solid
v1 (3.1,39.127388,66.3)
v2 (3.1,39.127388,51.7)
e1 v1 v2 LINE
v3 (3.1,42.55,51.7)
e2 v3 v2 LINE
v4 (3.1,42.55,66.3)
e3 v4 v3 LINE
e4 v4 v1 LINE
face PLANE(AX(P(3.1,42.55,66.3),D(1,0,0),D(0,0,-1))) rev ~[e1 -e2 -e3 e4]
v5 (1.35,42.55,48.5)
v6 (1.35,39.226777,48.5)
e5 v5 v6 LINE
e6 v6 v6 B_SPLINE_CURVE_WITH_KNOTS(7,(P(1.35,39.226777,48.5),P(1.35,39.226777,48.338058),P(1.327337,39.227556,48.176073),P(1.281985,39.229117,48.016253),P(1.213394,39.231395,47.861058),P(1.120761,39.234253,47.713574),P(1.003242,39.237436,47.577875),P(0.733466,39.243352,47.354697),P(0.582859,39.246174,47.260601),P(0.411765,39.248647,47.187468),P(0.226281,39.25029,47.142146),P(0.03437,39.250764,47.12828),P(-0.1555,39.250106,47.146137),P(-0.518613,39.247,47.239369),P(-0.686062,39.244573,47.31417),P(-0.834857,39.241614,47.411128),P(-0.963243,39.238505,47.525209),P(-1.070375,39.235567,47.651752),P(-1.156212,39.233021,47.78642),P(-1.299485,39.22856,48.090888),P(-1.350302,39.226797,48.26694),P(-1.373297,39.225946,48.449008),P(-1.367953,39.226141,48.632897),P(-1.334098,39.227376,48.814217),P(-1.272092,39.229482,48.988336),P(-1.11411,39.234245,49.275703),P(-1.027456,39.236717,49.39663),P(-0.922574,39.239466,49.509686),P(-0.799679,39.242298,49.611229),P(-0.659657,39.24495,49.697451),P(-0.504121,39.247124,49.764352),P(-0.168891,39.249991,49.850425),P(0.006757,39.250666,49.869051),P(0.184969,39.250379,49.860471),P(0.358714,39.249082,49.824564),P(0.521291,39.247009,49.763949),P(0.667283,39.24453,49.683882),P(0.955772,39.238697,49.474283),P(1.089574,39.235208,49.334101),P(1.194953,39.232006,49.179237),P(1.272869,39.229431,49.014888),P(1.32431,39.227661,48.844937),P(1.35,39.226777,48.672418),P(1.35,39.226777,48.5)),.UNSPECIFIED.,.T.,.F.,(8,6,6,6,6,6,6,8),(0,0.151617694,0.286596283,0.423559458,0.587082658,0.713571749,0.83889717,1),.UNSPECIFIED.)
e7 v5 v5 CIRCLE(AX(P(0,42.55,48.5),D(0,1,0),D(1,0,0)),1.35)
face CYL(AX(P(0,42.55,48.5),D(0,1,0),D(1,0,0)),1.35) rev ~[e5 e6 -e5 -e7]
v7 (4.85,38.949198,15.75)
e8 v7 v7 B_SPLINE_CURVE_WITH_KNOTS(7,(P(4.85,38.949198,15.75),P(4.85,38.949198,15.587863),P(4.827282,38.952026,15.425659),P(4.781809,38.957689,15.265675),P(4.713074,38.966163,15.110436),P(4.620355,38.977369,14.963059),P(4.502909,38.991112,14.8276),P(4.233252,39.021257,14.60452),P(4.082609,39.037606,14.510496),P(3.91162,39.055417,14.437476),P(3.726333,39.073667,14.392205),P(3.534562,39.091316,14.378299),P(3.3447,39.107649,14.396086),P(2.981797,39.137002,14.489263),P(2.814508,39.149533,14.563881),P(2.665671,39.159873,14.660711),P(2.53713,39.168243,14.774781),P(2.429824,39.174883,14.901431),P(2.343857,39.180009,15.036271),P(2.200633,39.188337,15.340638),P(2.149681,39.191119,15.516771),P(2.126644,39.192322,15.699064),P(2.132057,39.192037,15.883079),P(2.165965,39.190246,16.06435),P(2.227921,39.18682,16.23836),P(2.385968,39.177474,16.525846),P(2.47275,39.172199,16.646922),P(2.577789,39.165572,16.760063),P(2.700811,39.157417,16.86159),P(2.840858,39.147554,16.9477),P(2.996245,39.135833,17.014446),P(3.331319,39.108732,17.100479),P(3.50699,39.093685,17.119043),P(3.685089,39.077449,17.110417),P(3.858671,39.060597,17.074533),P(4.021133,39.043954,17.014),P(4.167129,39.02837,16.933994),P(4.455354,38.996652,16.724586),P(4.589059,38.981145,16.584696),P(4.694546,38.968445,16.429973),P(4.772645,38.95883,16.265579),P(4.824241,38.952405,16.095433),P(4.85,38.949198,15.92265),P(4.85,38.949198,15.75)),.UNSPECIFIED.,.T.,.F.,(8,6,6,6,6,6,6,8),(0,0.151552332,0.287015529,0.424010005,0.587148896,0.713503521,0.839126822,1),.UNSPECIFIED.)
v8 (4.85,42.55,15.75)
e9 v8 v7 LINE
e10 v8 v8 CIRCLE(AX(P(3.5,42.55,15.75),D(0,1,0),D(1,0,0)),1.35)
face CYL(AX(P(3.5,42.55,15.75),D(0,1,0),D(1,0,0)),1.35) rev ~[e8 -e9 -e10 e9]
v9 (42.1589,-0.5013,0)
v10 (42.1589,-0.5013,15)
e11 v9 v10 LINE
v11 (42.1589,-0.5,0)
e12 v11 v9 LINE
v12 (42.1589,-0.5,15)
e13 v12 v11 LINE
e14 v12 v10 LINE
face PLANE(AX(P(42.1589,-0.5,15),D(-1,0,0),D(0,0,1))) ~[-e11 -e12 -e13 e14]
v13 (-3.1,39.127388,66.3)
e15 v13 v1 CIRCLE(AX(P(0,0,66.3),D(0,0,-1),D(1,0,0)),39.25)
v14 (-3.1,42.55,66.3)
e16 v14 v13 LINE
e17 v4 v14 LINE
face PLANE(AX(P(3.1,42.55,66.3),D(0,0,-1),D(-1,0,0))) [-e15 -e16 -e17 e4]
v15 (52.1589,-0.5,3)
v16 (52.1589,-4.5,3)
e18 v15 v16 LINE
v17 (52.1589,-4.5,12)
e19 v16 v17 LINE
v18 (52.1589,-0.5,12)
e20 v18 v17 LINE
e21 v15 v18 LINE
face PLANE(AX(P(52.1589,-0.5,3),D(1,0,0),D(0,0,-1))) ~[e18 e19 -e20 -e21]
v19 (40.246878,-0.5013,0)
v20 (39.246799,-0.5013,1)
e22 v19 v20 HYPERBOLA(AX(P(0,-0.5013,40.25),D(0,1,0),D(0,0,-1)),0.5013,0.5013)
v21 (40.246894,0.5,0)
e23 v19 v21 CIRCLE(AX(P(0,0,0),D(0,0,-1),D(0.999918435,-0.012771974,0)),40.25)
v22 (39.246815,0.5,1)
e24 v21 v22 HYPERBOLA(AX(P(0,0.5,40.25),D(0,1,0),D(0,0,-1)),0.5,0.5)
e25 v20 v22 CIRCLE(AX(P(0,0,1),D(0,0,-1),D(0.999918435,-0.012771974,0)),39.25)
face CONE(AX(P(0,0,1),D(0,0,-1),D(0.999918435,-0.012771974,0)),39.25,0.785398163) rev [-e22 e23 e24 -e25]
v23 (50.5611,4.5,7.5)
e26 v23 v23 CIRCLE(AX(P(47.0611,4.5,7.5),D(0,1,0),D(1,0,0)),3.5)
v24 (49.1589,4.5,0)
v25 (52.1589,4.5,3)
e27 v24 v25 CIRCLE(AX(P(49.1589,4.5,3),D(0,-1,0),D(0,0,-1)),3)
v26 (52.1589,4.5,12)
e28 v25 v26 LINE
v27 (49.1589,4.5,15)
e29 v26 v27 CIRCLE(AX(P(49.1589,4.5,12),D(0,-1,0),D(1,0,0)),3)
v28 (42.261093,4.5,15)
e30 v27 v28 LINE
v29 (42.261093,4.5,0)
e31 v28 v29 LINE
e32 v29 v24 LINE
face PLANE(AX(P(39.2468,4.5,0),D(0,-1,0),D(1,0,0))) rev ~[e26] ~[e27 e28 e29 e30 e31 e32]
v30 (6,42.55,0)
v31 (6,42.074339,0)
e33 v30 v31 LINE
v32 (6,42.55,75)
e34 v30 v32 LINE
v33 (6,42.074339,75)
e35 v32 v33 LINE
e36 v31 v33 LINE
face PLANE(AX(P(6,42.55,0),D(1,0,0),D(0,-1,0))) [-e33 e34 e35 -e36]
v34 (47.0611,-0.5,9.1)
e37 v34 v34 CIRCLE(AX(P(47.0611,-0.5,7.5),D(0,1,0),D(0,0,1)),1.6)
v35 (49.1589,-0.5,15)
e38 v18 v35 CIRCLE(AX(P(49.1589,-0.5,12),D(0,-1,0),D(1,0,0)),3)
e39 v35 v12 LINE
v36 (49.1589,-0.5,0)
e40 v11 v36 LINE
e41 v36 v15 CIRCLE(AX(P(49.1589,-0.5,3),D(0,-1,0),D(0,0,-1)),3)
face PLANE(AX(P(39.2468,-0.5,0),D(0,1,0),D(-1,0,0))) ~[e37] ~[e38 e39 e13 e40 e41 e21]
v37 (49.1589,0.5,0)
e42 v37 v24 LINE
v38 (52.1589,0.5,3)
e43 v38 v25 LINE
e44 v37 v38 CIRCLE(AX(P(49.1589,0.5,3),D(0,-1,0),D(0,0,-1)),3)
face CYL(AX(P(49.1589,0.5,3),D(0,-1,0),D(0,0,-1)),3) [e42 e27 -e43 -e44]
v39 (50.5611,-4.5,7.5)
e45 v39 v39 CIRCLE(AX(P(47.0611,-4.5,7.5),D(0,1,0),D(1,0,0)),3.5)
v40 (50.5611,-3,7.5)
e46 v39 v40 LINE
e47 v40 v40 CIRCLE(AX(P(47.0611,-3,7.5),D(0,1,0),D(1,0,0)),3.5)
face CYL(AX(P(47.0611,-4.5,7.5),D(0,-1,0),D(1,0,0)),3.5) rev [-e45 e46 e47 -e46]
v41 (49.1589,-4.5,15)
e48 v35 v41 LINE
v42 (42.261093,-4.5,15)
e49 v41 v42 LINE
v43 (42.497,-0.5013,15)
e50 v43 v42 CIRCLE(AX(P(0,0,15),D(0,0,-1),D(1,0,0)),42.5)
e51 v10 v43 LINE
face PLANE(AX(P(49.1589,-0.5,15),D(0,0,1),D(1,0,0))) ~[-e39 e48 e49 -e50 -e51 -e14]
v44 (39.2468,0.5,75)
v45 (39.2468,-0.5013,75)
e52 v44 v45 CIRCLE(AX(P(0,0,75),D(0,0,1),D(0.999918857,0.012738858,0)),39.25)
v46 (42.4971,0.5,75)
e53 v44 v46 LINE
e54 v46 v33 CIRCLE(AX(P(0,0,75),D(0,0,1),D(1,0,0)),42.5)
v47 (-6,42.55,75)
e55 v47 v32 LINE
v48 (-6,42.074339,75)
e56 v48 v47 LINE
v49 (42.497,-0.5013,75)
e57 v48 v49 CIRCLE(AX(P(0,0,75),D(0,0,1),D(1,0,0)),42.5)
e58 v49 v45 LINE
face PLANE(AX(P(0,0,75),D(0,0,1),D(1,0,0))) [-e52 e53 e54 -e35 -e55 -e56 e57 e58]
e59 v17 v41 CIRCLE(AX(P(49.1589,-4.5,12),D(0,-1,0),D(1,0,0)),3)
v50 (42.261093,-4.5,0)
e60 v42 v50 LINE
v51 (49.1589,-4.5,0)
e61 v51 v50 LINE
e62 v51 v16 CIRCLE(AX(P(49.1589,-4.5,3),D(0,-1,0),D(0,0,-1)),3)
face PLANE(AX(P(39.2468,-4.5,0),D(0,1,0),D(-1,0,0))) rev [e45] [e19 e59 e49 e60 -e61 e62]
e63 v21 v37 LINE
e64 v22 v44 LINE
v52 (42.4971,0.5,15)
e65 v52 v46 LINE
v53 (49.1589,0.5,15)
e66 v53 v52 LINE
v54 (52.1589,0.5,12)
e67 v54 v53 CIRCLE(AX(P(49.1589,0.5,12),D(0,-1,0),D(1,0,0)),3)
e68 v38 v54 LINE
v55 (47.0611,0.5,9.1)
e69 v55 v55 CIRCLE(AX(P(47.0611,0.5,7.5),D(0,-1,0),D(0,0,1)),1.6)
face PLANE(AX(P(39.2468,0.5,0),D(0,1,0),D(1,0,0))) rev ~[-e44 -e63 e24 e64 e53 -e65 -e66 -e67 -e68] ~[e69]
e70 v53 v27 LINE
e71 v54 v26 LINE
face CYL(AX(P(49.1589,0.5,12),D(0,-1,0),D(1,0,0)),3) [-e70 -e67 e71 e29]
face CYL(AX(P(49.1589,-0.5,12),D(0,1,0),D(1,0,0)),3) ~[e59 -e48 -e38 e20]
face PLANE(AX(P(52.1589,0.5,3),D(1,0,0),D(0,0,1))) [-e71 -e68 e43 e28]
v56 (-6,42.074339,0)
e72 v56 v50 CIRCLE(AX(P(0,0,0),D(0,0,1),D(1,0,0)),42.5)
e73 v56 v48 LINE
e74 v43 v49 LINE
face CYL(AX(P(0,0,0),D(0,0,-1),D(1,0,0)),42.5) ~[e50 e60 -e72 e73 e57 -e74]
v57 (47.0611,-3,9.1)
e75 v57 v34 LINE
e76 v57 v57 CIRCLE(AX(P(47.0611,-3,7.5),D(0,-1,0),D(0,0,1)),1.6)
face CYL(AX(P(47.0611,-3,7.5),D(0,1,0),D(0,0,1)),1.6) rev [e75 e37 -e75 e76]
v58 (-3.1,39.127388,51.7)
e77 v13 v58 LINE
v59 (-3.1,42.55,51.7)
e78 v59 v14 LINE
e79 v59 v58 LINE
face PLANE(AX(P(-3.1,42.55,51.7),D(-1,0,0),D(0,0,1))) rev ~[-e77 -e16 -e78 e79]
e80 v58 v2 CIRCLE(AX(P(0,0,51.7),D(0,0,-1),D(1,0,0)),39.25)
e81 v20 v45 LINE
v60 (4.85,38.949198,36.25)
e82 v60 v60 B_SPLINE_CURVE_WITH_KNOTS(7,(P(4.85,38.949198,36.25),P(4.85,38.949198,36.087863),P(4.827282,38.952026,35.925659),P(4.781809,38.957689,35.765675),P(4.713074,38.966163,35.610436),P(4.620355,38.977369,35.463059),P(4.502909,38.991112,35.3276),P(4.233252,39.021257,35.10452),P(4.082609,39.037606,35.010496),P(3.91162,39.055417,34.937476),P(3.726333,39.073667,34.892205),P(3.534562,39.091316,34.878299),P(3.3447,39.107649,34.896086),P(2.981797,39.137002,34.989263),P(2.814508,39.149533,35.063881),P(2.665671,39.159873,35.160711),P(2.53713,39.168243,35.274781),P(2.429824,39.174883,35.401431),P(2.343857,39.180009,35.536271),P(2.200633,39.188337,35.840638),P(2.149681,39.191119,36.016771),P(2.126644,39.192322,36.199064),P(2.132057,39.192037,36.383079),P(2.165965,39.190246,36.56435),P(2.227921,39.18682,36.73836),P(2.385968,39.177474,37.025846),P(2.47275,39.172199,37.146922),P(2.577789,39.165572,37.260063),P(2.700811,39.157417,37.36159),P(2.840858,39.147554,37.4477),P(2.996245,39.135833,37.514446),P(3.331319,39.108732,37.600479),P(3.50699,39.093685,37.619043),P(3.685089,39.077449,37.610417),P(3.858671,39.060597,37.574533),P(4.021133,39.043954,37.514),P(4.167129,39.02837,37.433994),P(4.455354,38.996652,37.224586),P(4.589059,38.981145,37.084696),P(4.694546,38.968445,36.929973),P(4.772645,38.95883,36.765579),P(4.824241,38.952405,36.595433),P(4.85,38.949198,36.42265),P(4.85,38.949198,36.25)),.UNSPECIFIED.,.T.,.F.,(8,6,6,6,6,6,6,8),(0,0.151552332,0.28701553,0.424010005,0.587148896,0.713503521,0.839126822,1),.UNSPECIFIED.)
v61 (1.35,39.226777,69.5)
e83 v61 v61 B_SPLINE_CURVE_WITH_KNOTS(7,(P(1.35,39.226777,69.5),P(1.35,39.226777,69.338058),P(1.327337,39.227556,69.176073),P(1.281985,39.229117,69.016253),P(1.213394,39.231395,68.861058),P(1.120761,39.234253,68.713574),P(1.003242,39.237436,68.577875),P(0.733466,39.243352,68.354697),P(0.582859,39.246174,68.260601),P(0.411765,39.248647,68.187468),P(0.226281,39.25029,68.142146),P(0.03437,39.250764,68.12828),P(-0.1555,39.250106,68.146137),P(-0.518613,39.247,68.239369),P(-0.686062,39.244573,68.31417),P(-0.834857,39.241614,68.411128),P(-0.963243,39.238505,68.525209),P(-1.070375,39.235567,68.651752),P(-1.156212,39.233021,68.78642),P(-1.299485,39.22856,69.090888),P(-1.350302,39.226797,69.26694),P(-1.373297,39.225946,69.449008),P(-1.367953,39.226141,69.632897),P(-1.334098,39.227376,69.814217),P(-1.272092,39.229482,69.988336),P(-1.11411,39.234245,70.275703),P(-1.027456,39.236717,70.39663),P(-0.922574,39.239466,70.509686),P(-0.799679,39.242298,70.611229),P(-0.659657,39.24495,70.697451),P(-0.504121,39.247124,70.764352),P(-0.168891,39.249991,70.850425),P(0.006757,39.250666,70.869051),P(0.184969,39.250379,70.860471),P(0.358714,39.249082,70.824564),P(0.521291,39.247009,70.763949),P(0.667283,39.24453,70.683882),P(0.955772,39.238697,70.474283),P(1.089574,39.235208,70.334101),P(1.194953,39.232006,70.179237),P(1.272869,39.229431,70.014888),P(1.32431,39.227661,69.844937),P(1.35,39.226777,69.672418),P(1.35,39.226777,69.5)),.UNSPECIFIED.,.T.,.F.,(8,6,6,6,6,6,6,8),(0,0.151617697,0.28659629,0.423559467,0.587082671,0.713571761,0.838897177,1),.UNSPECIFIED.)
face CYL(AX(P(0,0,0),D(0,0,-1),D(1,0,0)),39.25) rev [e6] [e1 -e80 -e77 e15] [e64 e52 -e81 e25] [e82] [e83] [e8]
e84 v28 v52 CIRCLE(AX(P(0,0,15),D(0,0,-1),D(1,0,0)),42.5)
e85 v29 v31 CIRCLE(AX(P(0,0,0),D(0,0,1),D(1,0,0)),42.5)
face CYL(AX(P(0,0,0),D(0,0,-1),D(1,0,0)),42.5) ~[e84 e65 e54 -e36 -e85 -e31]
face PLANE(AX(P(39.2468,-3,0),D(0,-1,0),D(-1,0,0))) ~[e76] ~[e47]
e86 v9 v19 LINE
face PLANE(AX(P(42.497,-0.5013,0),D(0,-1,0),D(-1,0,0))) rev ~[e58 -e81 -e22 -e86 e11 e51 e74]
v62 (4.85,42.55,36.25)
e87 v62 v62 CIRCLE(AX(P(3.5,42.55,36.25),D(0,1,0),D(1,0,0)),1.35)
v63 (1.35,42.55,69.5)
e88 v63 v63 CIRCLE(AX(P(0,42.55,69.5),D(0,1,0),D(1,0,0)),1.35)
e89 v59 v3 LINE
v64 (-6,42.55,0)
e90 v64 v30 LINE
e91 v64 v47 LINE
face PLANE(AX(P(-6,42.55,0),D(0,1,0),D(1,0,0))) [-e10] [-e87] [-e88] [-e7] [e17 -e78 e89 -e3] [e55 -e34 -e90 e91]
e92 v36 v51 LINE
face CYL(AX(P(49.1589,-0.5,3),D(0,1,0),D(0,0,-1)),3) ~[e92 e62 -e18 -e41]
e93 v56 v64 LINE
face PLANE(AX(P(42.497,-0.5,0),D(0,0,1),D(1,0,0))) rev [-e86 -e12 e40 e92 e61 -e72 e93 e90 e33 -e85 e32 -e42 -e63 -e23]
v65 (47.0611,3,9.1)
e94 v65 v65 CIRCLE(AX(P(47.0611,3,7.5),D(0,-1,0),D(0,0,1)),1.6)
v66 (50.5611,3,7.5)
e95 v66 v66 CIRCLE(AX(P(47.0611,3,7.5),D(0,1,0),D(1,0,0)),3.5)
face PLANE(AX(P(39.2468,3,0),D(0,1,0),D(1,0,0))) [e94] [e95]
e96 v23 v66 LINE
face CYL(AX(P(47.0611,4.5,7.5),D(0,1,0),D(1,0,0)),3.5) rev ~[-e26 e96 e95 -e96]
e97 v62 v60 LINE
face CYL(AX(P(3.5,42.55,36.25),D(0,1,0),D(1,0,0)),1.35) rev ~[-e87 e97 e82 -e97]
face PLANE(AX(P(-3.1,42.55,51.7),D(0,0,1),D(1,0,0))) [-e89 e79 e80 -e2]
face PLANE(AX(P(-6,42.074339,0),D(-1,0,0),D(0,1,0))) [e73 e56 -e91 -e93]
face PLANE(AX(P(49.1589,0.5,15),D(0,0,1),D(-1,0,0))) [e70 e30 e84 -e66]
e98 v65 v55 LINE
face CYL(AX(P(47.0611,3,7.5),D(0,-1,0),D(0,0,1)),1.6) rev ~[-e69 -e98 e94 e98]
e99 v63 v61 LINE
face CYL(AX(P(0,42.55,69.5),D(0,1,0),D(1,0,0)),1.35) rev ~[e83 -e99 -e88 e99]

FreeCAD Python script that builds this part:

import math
import FreeCAD as App
import Part
import Sketcher
Q = App.Units.Quantity


def edges_at(feature, points):
    """Names of the edges that pass closest to the given points."""
    edges = feature.Shape.Edges
    near = lambda p: min(range(len(edges)), key=lambda i: edges[i].distToShape(Part.Vertex(*p))[0])
    return sorted({f"Edge{near(p) + 1}" for p in points})


def add_polygon(sketch, points):
    """Adds a closed chain of lines whose ends are joined by coincident constraints."""
    first, n = sketch.GeometryCount, len(points)
    for a, b in zip(points, points[1:] + points[:1]):
        sketch.addGeometry(Part.LineSegment(App.Vector(*a, 0), App.Vector(*b, 0)), False)
    for i in range(n):
        sketch.addConstraint(Sketcher.Constraint("Coincident", first + i, 2, first + (i + 1) % n, 1))

doc = App.newDocument("Part")
body = doc.addObject("PartDesign::Body", "Body")

sketch1 = body.newObject("Sketcher::SketchObject", "Sketch")
sketch1.AttachmentSupport = (doc.getObject("XY_Plane"), [""])
sketch1.MapMode = "FlatFace"
sketch1.addGeometry([
    Part.LineSegment(App.Vector(39.25, 0.5, 0), App.Vector(42.5, 0.5, 0)),
    Part.ArcOfCircle(Part.Circle(App.Vector(0, 0, 0), App.Vector(0, 0, 1), 42.5), math.radians(1), math.radians(82)),
    Part.LineSegment(App.Vector(6, 42.07, 0), App.Vector(6, 42.55, 0)),
    Part.LineSegment(App.Vector(6, 42.55, 0), App.Vector(-6, 42.55, 0)),
    Part.LineSegment(App.Vector(-6, 42.55, 0), App.Vector(-6, 42.07, 0)),
    Part.ArcOfCircle(Part.Circle(App.Vector(0, 0, 0), App.Vector(0, 0, 1), 42.5), math.radians(98), math.radians(359)),
    Part.LineSegment(App.Vector(42.5, -0.5, 0), App.Vector(39.25, -0.5, 0)),
    Part.ArcOfCircle(Part.Circle(App.Vector(0, 0, 0), App.Vector(0, 0, 1), 39.25), math.radians(1), math.radians(359)),
], False)
sketch1.addConstraint([
    Sketcher.Constraint("Coincident", 0, 2, 1, 1),
    Sketcher.Constraint("Coincident", 1, 2, 2, 1),
    Sketcher.Constraint("Coincident", 2, 2, 3, 1),
    Sketcher.Constraint("Coincident", 3, 2, 4, 1),
    Sketcher.Constraint("Coincident", 4, 2, 5, 1),
    Sketcher.Constraint("Coincident", 5, 2, 6, 1),
    Sketcher.Constraint("Coincident", 6, 2, 7, 2),
    Sketcher.Constraint("Coincident", 7, 1, 0, 1),
    Sketcher.Constraint("Horizontal", 0),
    Sketcher.Constraint("Vertical", 2),
    Sketcher.Constraint("Horizontal", 3),
    Sketcher.Constraint("Vertical", 4),
    Sketcher.Constraint("Horizontal", 6),
    Sketcher.Constraint("Coincident", 1, 3, -1, 1),
    Sketcher.Constraint("Coincident", 5, 3, -1, 1),
    Sketcher.Constraint("Coincident", 7, 3, -1, 1),
    Sketcher.Constraint("Equal", 1, 5),
    Sketcher.Constraint("Horizontal", 1, 2, 4, 2),
    Sketcher.Constraint("Vertical", 0, 2, 5, 2),
    Sketcher.Constraint("Radius", 1, Q("42.5 mm")),
    Sketcher.Constraint("DistanceX", 3, 2, 3, 1, Q("12 mm")),
    Sketcher.Constraint("Radius", 7, Q("39.25 mm")),
    Sketcher.Constraint("DistanceY", -1, 1, 0, 2, Q("0.5 mm")),
    Sketcher.Constraint("DistanceY", -1, 1, 2, 2, Q("42.55 mm")),
])
pad1 = body.newObject("PartDesign::Pad", "Pad")
pad1.Profile = sketch1
pad1.Length = 75

sketch2 = body.newObject("Sketcher::SketchObject", "Sketch001")
sketch2.AttachmentSupport = (doc.getObject("XZ_Plane"), [""])
sketch2.MapMode = "FlatFace"
sketch2.AttachmentOffset = App.Placement(App.Vector(0, 0, -0.5), App.Rotation())
sketch2.addGeometry([
    Part.LineSegment(App.Vector(42.2, 0, 0), App.Vector(49.2, 0, 0)),
    Part.ArcOfCircle(Part.Circle(App.Vector(49.2, 3, 0), App.Vector(0, 0, 1), 3), math.radians(-90), math.radians(0)),
    Part.LineSegment(App.Vector(52.2, 3, 0), App.Vector(52.2, 12, 0)),
    Part.ArcOfCircle(Part.Circle(App.Vector(49.2, 12, 0), App.Vector(0, 0, 1), 3), math.radians(0), math.radians(90)),
    Part.LineSegment(App.Vector(49.2, 15, 0), App.Vector(42.2, 15, 0)),
    Part.LineSegment(App.Vector(42.2, 15, 0), App.Vector(42.2, 0, 0)),
], False)
sketch2.addConstraint([
    Sketcher.Constraint("Tangent", 0, 2, 1, 1),
    Sketcher.Constraint("Tangent", 1, 2, 2, 1),
    Sketcher.Constraint("Tangent", 2, 2, 3, 1),
    Sketcher.Constraint("Tangent", 3, 2, 4, 1),
    Sketcher.Constraint("Coincident", 4, 2, 5, 1),
    Sketcher.Constraint("Coincident", 5, 2, 0, 1),
    Sketcher.Constraint("Horizontal", 0),
    Sketcher.Constraint("Vertical", 2),
    Sketcher.Constraint("Horizontal", 4),
    Sketcher.Constraint("Vertical", 5),
    Sketcher.Constraint("Equal", 1, 3),
    Sketcher.Constraint("PointOnObject", 0, 2, -1),
    Sketcher.Constraint("Radius", 1, Q("3 mm")),
    Sketcher.Constraint("DistanceY", 5, 2, 5, 1, Q("15 mm")),
    Sketcher.Constraint("DistanceX", 4, 2, 2, 2, Q("10 mm")),
    Sketcher.Constraint("DistanceX", -1, 1, 1, 3, Q("49.159 mm")),
])
pad2 = body.newObject("PartDesign::Pad", "Pad001")
pad2.Profile = sketch2
pad2.Length = 4
pad2.Reversed = True

sketch3 = body.newObject("Sketcher::SketchObject", "Sketch002")
sketch3.AttachmentSupport = (doc.getObject("XZ_Plane"), [""])
sketch3.MapMode = "FlatFace"
sketch3.AttachmentOffset = App.Placement(App.Vector(0, 0, -4.5), App.Rotation())
sketch3.addGeometry(Part.Circle(App.Vector(47.1, 7.5, 0), App.Vector(0, 0, 1), 3.5), False)
sketch3.addConstraint([
    Sketcher.Constraint("Diameter", 0, Q("7 mm")),
    Sketcher.Constraint("DistanceY", -1, 1, 0, 3, Q("7.5 mm")),
    Sketcher.Constraint("DistanceX", -1, 1, 0, 3, Q("47.061 mm")),
])
pocket1 = body.newObject("PartDesign::Pocket", "Pocket")
pocket1.Profile = sketch3
pocket1.Length = 1.5
pocket1.Reversed = True

sketch4 = body.newObject("Sketcher::SketchObject", "Sketch003")
sketch4.AttachmentSupport = (doc.getObject("XZ_Plane"), [""])
sketch4.MapMode = "FlatFace"
sketch4.AttachmentOffset = App.Placement(App.Vector(0, 0, -3), App.Rotation())
sketch4.addGeometry(Part.Circle(App.Vector(47.1, 7.5, 0), App.Vector(0, 0, 1), 1.6), False)
sketch4.addConstraint([
    Sketcher.Constraint("Diameter", 0, Q("3.2 mm")),
    Sketcher.Constraint("DistanceY", -1, 1, 0, 3, Q("7.5 mm")),
    Sketcher.Constraint("DistanceX", -1, 1, 0, 3, Q("47.061 mm")),
])
doc.recompute()
hole = body.newObject("PartDesign::Hole", "Hole")
hole.Profile = sketch4
hole.ThreadType = "None"
hole.Diameter = 3.2
hole.DepthType = "ThroughAll"
hole.Reversed = True
doc.recompute()

mirrored = body.newObject("PartDesign::Mirrored", "Mirrored")
mirrored.Originals = [pad2, pocket1, hole]
mirrored.MirrorPlane = (doc.getObject("XZ_Plane"), [""])
body.Tip = mirrored

sketch5 = body.newObject("Sketcher::SketchObject", "Sketch004")
sketch5.AttachmentSupport = (doc.getObject("XZ_Plane"), [""])
sketch5.MapMode = "FlatFace"
sketch5.AttachmentOffset = App.Placement(App.Vector(0, 0, -42.55), App.Rotation())
sketch5.addGeometry(Part.Circle(App.Vector(3.5, 15.8, 0), App.Vector(0, 0, 1), 1.4), False)
sketch5.addGeometry(Part.Circle(App.Vector(3.5, 36.2, 0), App.Vector(0, 0, 1), 1.4), False)
add_polygon(sketch5, [(-3.1, 51.7), (-3.1, 66.3), (3.1, 66.3), (3.1, 51.7)])
sketch5.addGeometry(Part.Circle(App.Vector(0, 69.5, 0), App.Vector(0, 0, 1), 1.4), False)
sketch5.addGeometry(Part.Circle(App.Vector(0, 48.5, 0), App.Vector(0, 0, 1), 1.4), False)
sketch5.addConstraint([
    Sketcher.Constraint("Vertical", 2),
    Sketcher.Constraint("Horizontal", 3),
    Sketcher.Constraint("Vertical", 4),
    Sketcher.Constraint("Horizontal", 5),
    Sketcher.Constraint("Equal", 0, 1),
    Sketcher.Constraint("Equal", 1, 6),
    Sketcher.Constraint("Equal", 6, 7),
    Sketcher.Constraint("PointOnObject", 6, 3, -2),
    Sketcher.Constraint("PointOnObject", 7, 3, -2),
    Sketcher.Constraint("Vertical", 0, 3, 1, 3),
    Sketcher.Constraint("Diameter", 0, Q("2.7 mm")),
    Sketcher.Constraint("DistanceX", 3, 1, 3, 2, Q("6.2 mm")),
    Sketcher.Constraint("DistanceY", 2, 1, 2, 2, Q("14.6 mm")),
    Sketcher.Constraint("DistanceX", 2, 2, -1, 1, Q("3.1 mm")),
    Sketcher.Constraint("DistanceY", 7, 3, 6, 3, Q("21 mm")),
    Sketcher.Constraint("DistanceX", -1, 1, 0, 3, Q("3.5 mm")),
    Sketcher.Constraint("DistanceY", -1, 1, 6, 3, Q("69.5 mm")),
    Sketcher.Constraint("DistanceY", -1, 1, 2, 2, Q("66.3 mm")),
    Sketcher.Constraint("DistanceY", 0, 3, 1, 3, Q("20.5 mm")),
    Sketcher.Constraint("DistanceY", -1, 1, 0, 3, Q("15.75 mm")),
])
pocket2 = body.newObject("PartDesign::Pocket", "Pocket001")
pocket2.Profile = sketch5
pocket2.Length = 6
pocket2.Reversed = True
doc.recompute()

chamfer = body.newObject("PartDesign::Chamfer", "Chamfer")
chamfer.Base = (pocket2, edges_at(pocket2, [(-39.25, 0.001, 0)]))
chamfer.Size = 1

doc.recompute()
